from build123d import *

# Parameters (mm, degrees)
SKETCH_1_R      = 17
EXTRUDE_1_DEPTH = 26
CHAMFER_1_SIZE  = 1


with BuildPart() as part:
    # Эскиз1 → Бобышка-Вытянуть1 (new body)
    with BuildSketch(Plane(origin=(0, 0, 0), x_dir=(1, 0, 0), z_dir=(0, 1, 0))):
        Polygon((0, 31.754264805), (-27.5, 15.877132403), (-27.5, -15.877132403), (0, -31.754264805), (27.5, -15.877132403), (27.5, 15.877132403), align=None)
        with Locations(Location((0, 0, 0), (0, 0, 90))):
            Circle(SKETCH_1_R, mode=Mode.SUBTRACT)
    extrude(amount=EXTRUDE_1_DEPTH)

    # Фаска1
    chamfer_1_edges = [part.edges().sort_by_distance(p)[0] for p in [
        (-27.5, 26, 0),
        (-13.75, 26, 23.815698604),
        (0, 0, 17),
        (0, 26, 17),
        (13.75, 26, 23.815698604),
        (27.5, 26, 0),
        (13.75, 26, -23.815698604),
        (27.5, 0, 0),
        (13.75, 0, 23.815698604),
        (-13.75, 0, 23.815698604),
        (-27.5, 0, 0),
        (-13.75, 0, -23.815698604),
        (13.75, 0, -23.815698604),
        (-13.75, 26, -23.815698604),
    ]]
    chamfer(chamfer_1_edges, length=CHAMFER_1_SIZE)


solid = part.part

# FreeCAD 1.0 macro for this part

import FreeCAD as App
import Part
import Sketcher

V = App.Vector
Q = App.Units.Quantity


def edges_at(feature, points):
    """Names of the edges that pass closest to the given points."""
    edges = feature.Shape.Edges
    near = lambda p: min(range(len(edges)), key=lambda i: edges[i].distToShape(Part.Vertex(*p))[0])
    return sorted({f"Edge{near(p) + 1}" for p in points})

doc = App.newDocument("Part")
body = doc.addObject("PartDesign::Body", "Body")

# Sketch on XZ plane
sketch1 = body.newObject("Sketcher::SketchObject", "Sketch")
sketch1.AttachmentSupport = (doc.getObject("XZ_Plane"), [""])
sketch1.MapMode = "FlatFace"
sketch1.addGeometry([
    Part.LineSegment(V(0, -31.754265, 0), V(-27.5, -15.877132, 0)),  # 0
    Part.LineSegment(V(-27.5, -15.877132, 0), V(-27.5, 15.877132, 0)),  # 1
    Part.LineSegment(V(-27.5, 15.877132, 0), V(0, 31.754265, 0)),  # 2
    Part.LineSegment(V(0, 31.754265, 0), V(27.5, 15.877132, 0)),  # 3
    Part.LineSegment(V(27.5, 15.877132, 0), V(27.5, -15.877132, 0)),  # 4
    Part.LineSegment(V(27.5, -15.877132, 0), V(0, -31.754265, 0)),  # 5
    Part.Circle(V(0, 0, 0), V(0, 0, 1), 17),  # 6
], False)
sketch1.addConstraint([
    Sketcher.Constraint("Coincident", 0, 2, 1, 1),
    Sketcher.Constraint("Coincident", 1, 2, 2, 1),
    Sketcher.Constraint("Coincident", 2, 2, 3, 1),
    Sketcher.Constraint("Coincident", 3, 2, 4, 1),
    Sketcher.Constraint("Coincident", 4, 2, 5, 1),
    Sketcher.Constraint("Coincident", 5, 2, 0, 1),
    Sketcher.Constraint("Vertical", 1),
    Sketcher.Constraint("Vertical", 4),
    Sketcher.Constraint("Coincident", 6, 3, -1, 1),
    Sketcher.Constraint("Symmetric", 0, 2, 3, 2, -1, 1),
    Sketcher.Constraint("Symmetric", 2, 2, 5, 2, -1, 1),
    Sketcher.Constraint("PointOnObject", 2, 2, -2),
    Sketcher.Constraint("Parallel", 2, 5),
    Sketcher.Constraint("Horizontal", 1, 2, 3, 2),
    Sketcher.Constraint("Diameter", 6, 34.0),
    Sketcher.Constraint("Angle", 0, Q("150 deg")),
    Sketcher.Constraint("DistanceX", 1, 2, 3, 2, 55.0),
    Sketcher.Constraint("DistanceY", 1, 1, 1, 2, 31.754265),
])
pad1 = body.newObject("PartDesign::Pad", "Pad")
pad1.Profile = sketch1
pad1.Length = 26
pad1.Reversed = True
doc.recompute()

chamfer = body.newObject("PartDesign::Chamfer", "Chamfer")
chamfer.Base = (pad1, edges_at(pad1, [
    (-27.5, 26, 0),
    (-13.75, 26, 23.816),
    (0, 0, 17),
    (0, 26, 17),
    (13.75, 26, 23.816),
    (27.5, 26, 0),
    (13.75, 26, -23.816),
    (27.5, 0, 0),
    (13.75, 0, 23.816),
    (-13.75, 0, 23.816),
    (-27.5, 0, 0),
    (-13.75, 0, -23.816),
    (13.75, 0, -23.816),
    (-13.75, 26, -23.816),
]))
chamfer.Size = 1

doc.recompute()
